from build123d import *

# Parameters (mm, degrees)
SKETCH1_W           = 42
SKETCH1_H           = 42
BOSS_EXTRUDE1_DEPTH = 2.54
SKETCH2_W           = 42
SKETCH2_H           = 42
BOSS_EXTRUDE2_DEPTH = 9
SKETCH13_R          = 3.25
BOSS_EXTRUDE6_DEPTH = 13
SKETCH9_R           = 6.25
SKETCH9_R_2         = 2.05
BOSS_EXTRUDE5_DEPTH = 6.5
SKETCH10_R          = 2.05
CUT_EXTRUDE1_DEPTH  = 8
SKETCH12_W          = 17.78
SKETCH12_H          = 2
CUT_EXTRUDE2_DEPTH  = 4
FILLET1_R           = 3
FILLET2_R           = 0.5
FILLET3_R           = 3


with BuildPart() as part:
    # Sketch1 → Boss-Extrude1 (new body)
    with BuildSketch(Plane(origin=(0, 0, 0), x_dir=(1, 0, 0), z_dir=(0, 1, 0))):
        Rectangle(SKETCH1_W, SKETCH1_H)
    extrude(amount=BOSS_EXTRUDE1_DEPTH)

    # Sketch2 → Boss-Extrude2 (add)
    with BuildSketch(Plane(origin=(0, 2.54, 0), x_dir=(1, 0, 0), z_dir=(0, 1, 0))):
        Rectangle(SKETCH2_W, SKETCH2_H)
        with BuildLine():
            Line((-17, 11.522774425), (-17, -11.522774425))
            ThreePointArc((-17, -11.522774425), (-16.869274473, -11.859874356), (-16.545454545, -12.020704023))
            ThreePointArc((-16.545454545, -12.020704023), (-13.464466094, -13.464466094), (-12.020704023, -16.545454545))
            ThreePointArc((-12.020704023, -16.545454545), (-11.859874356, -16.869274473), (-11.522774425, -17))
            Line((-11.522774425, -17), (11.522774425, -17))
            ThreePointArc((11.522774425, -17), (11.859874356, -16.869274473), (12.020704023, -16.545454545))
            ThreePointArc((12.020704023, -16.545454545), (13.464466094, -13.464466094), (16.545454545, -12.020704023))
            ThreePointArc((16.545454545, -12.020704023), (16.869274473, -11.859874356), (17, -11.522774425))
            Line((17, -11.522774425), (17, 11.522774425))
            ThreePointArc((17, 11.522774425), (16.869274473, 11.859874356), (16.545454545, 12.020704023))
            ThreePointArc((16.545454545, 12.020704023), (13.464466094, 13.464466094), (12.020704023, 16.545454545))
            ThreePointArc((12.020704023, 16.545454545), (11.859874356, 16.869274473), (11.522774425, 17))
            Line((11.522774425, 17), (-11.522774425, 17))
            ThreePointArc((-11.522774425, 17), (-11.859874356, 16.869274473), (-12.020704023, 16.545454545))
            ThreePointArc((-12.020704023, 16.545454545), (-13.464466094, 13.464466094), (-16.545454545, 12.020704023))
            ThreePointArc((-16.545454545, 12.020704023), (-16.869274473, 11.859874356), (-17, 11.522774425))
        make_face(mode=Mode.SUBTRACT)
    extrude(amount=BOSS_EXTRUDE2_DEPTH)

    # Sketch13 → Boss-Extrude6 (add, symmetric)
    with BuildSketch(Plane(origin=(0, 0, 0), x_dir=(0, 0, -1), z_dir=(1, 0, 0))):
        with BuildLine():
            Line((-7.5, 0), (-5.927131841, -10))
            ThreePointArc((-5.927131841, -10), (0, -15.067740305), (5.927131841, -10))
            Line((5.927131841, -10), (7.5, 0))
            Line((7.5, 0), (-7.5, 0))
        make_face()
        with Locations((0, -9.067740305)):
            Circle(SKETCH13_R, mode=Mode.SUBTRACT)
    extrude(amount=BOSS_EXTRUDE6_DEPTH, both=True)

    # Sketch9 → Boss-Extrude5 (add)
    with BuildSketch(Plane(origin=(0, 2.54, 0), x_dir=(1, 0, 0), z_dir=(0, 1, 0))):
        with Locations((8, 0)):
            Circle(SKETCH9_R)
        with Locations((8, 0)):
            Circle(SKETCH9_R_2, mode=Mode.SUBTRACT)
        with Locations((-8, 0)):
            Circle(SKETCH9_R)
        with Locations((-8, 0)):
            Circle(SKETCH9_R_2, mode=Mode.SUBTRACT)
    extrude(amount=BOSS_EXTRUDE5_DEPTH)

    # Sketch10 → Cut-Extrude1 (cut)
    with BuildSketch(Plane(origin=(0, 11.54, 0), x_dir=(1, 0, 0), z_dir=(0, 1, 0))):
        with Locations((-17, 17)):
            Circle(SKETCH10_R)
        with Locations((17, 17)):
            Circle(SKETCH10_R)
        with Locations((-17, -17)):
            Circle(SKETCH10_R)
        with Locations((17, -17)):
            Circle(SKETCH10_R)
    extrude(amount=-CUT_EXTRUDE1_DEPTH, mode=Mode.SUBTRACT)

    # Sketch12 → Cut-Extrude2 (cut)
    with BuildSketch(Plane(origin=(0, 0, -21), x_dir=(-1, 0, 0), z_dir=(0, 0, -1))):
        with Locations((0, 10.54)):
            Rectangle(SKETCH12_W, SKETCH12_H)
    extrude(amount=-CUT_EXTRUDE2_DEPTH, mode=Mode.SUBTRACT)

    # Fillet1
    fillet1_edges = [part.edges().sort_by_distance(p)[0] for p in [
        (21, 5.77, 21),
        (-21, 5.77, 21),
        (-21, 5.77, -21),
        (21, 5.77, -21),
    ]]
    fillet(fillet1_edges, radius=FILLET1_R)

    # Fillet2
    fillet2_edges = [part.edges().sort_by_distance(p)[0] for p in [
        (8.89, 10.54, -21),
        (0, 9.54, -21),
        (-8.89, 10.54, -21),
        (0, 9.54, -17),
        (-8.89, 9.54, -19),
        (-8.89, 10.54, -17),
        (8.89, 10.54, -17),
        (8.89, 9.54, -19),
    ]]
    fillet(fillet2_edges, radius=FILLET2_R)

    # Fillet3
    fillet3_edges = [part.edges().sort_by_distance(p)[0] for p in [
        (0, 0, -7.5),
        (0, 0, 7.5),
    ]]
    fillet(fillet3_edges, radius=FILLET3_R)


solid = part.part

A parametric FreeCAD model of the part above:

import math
import FreeCAD as App
import Part
import Sketcher

V = App.Vector


def edges_at(feature, points):
    """Names of the edges that pass closest to the given points."""
    edges = feature.Shape.Edges
    near = lambda p: min(range(len(edges)), key=lambda i: edges[i].distToShape(Part.Vertex(*p))[0])
    return sorted({f"Edge{near(p) + 1}" for p in points})


def add_polygon(sketch, points):
    """Adds a closed chain of lines whose ends are joined by coincident constraints."""
    first, n = sketch.GeometryCount, len(points)
    for a, b in zip(points, points[1:] + points[:1]):
        sketch.addGeometry(Part.LineSegment(App.Vector(*a, 0), App.Vector(*b, 0)), False)
    for i in range(n):
        sketch.addConstraint(Sketcher.Constraint("Coincident", first + i, 2, first + (i + 1) % n, 1))

doc = App.newDocument("Part")
body = doc.addObject("PartDesign::Body", "Body")

sketch1 = doc.addObject("Sketcher::SketchObject", "Sketch")
body.addObject(sketch1)
sketch1.AttachmentSupport = (doc.XZ_Plane, [""])
sketch1.MapMode = "FlatFace"
add_polygon(sketch1, [(-21, -21), (-21, 21), (21, 21), (21, -21)])
sketch1.addConstraint(Sketcher.Constraint("Vertical", 0))
sketch1.addConstraint(Sketcher.Constraint("Horizontal", 1))
sketch1.addConstraint(Sketcher.Constraint("Vertical", 2))
sketch1.addConstraint(Sketcher.Constraint("Horizontal", 3))
sketch1.addConstraint(Sketcher.Constraint("Symmetric", 0, 2, 2, 2, -1, 1))
sketch1.addConstraint(Sketcher.Constraint("Equal", 3, 0))
sketch1.addConstraint(Sketcher.Constraint("DistanceX", 1, 1, 1, 2, 42.0))
pad1 = doc.addObject("PartDesign::Pad", "Pad")
body.addObject(pad1)
pad1.Profile = sketch1
pad1.Length = 2.54
pad1.Reversed = True

sketch2 = doc.addObject("Sketcher::SketchObject", "Sketch001")
body.addObject(sketch2)
sketch2.AttachmentSupport = (doc.XZ_Plane, [""])
sketch2.MapMode = "FlatFace"
sketch2.AttachmentOffset = App.Placement(V(0, 0, -2.54), App.Rotation())
add_polygon(sketch2, [(-21, -21), (-21, 21), (21, 21), (21, -21)])
sketch2.addGeometry(Part.LineSegment(V(-17, 11.5, 0), V(-17, -11.5, 0)), False)
sketch2.addGeometry(Part.ArcOfCircle(Part.Circle(V(-16.5, -11.5, 0), V(0, 0, 1), 0.5), math.radians(180), math.radians(265)), False)
sketch2.addGeometry(Part.ArcOfCircle(Part.Circle(V(-17, -17, 0), V(0, 0, 1), 5), math.radians(5), math.radians(85)), False)
sketch2.addGeometry(Part.ArcOfCircle(Part.Circle(V(-11.5, -16.5, 0), V(0, 0, 1), 0.5), math.radians(-175), math.radians(-90)), False)
sketch2.addGeometry(Part.LineSegment(V(-11.5, -17, 0), V(11.5, -17, 0)), False)
sketch2.addGeometry(Part.ArcOfCircle(Part.Circle(V(11.5, -16.5, 0), V(0, 0, 1), 0.5), math.radians(-90), math.radians(-5)), False)
sketch2.addGeometry(Part.ArcOfCircle(Part.Circle(V(17, -17, 0), V(0, 0, 1), 5), math.radians(95), math.radians(175)), False)
sketch2.addGeometry(Part.ArcOfCircle(Part.Circle(V(16.5, -11.5, 0), V(0, 0, 1), 0.5), math.radians(-85), math.radians(0)), False)
sketch2.addGeometry(Part.LineSegment(V(17, -11.5, 0), V(17, 11.5, 0)), False)
sketch2.addGeometry(Part.ArcOfCircle(Part.Circle(V(16.5, 11.5, 0), V(0, 0, 1), 0.5), math.radians(0), math.radians(85)), False)
sketch2.addGeometry(Part.ArcOfCircle(Part.Circle(V(17, 17, 0), V(0, 0, 1), 5), math.radians(-175), math.radians(-95)), False)
sketch2.addGeometry(Part.ArcOfCircle(Part.Circle(V(11.5, 16.5, 0), V(0, 0, 1), 0.5), math.radians(5), math.radians(90)), False)
sketch2.addGeometry(Part.LineSegment(V(11.5, 17, 0), V(-11.5, 17, 0)), False)
sketch2.addGeometry(Part.ArcOfCircle(Part.Circle(V(-11.5, 16.5, 0), V(0, 0, 1), 0.5), math.radians(90), math.radians(175)), False)
sketch2.addGeometry(Part.ArcOfCircle(Part.Circle(V(-17, 17, 0), V(0, 0, 1), 5), math.radians(-85), math.radians(-5)), False)
sketch2.addGeometry(Part.ArcOfCircle(Part.Circle(V(-16.5, 11.5, 0), V(0, 0, 1), 0.5), math.radians(95), math.radians(180)), False)
sketch2.addConstraint(Sketcher.Constraint("Tangent", 4, 2, 5, 1))
sketch2.addConstraint(Sketcher.Constraint("Tangent", 5, 2, 6, 2))
sketch2.addConstraint(Sketcher.Constraint("Tangent", 6, 1, 7, 1))
sketch2.addConstraint(Sketcher.Constraint("Tangent", 7, 2, 8, 1))
sketch2.addConstraint(Sketcher.Constraint("Tangent", 8, 2, 9, 1))
sketch2.addConstraint(Sketcher.Constraint("Tangent", 9, 2, 10, 2))
sketch2.addConstraint(Sketcher.Constraint("Tangent", 10, 1, 11, 1))
sketch2.addConstraint(Sketcher.Constraint("Tangent", 11, 2, 12, 1))
sketch2.addConstraint(Sketcher.Constraint("Tangent", 12, 2, 13, 1))
sketch2.addConstraint(Sketcher.Constraint("Tangent", 13, 2, 14, 2))
sketch2.addConstraint(Sketcher.Constraint("Tangent", 14, 1, 15, 1))
sketch2.addConstraint(Sketcher.Constraint("Tangent", 15, 2, 16, 1))
sketch2.addConstraint(Sketcher.Constraint("Tangent", 16, 2, 17, 1))
sketch2.addConstraint(Sketcher.Constraint("Tangent", 17, 2, 18, 2))
sketch2.addConstraint(Sketcher.Constraint("Tangent", 18, 1, 19, 1))
sketch2.addConstraint(Sketcher.Constraint("Tangent", 19, 2, 4, 1))
sketch2.addConstraint(Sketcher.Constraint("Vertical", 0))
sketch2.addConstraint(Sketcher.Constraint("Horizontal", 1))
sketch2.addConstraint(Sketcher.Constraint("Vertical", 2))
sketch2.addConstraint(Sketcher.Constraint("Horizontal", 3))
sketch2.addConstraint(Sketcher.Constraint("Vertical", 4))
sketch2.addConstraint(Sketcher.Constraint("Horizontal", 8))
sketch2.addConstraint(Sketcher.Constraint("Vertical", 12))
sketch2.addConstraint(Sketcher.Constraint("Horizontal", 16))
sketch2.addConstraint(Sketcher.Constraint("Equal", 5, 7))
sketch2.addConstraint(Sketcher.Constraint("Equal", 7, 9))
sketch2.addConstraint(Sketcher.Constraint("Equal", 6, 10))
sketch2.addConstraint(Sketcher.Constraint("Equal", 9, 11))
sketch2.addConstraint(Sketcher.Constraint("Equal", 11, 13))
sketch2.addConstraint(Sketcher.Constraint("Equal", 10, 14))
sketch2.addConstraint(Sketcher.Constraint("Equal", 13, 15))
sketch2.addConstraint(Sketcher.Constraint("Equal", 15, 17))
sketch2.addConstraint(Sketcher.Constraint("Equal", 14, 18))
sketch2.addConstraint(Sketcher.Constraint("Equal", 17, 19))
sketch2.addConstraint(Sketcher.Constraint("Symmetric", 5, 3, 13, 3, -1, 1))
sketch2.addConstraint(Sketcher.Constraint("Symmetric", 7, 3, 15, 3, -1, 1))
sketch2.addConstraint(Sketcher.Constraint("Symmetric", 10, 3, 18, 3, -1, 1))
sketch2.addConstraint(Sketcher.Constraint("Symmetric", 0, 2, 2, 2, -1, 1))
sketch2.addConstraint(Sketcher.Constraint("Symmetric", 6, 3, 10, 3, -2))
sketch2.addConstraint(Sketcher.Constraint("Horizontal", 10, 3, 7, 2))
sketch2.addConstraint(Sketcher.Constraint("Vertical", 18, 3, 4, 2))
sketch2.addConstraint(Sketcher.Constraint("Equal", 3, 0))
sketch2.addConstraint(Sketcher.Constraint("Equal", 16, 4))
sketch2.addConstraint(Sketcher.Constraint("Radius", 6, 5.0))
sketch2.addConstraint(Sketcher.Constraint("Radius", 5, 0.5))
sketch2.addConstraint(Sketcher.Constraint("DistanceX", 1, 1, 1, 2, 42.0))
sketch2.addConstraint(Sketcher.Constraint("DistanceX", 6, 3, -1, 1, 17.0))
pad2 = doc.addObject("PartDesign::Pad", "Pad001")
body.addObject(pad2)
pad2.Profile = sketch2
pad2.Length = 9
pad2.Reversed = True

sketch3 = doc.addObject("Sketcher::SketchObject", "Sketch002")
body.addObject(sketch3)
sketch3.AttachmentSupport = (doc.YZ_Plane, [""])
sketch3.MapMode = "FlatFace"
sketch3.addGeometry(Part.LineSegment(V(0, 7.5, 0), V(-10, 5.9, 0)), False)
sketch3.addGeometry(Part.ArcOfCircle(Part.Circle(V(-9.1, 0, 0), V(0, 0, 1), 6), math.radians(99), math.radians(261)), False)
sketch3.addGeometry(Part.LineSegment(V(-10, -5.9, 0), V(0, -7.5, 0)), False)
sketch3.addGeometry(Part.LineSegment(V(0, -7.5, 0), V(0, 7.5, 0)), False)
sketch3.addGeometry(Part.Circle(V(-9.1, 0, 0), V(0, 0, 1), 3.2), False)
sketch3.addConstraint(Sketcher.Constraint("Tangent", 0, 2, 1, 1))
sketch3.addConstraint(Sketcher.Constraint("Tangent", 1, 2, 2, 1))
sketch3.addConstraint(Sketcher.Constraint("Coincident", 2, 2, 3, 1))
sketch3.addConstraint(Sketcher.Constraint("Coincident", 3, 2, 0, 1))
sketch3.addConstraint(Sketcher.Constraint("Vertical", 3))
sketch3.addConstraint(Sketcher.Constraint("Coincident", 4, 3, 1, 3))
sketch3.addConstraint(Sketcher.Constraint("Symmetric", 2, 2, 3, 2, -1, 1))
sketch3.addConstraint(Sketcher.Constraint("PointOnObject", 1, 3, -1))
sketch3.addConstraint(Sketcher.Constraint("Radius", 1, 6.0))
sketch3.addConstraint(Sketcher.Constraint("Diameter", 4, 6.5))
sketch3.addConstraint(Sketcher.Constraint("DistanceY", 3, 1, 3, 2, 15.0))
sketch3.addConstraint(Sketcher.Constraint("DistanceX", 0, 2, -1, 1, 10.0))
pad3 = doc.addObject("PartDesign::Pad", "Pad002")
body.addObject(pad3)
pad3.Profile = sketch3
pad3.Length = 26
pad3.Midplane = True

sketch4 = doc.addObject("Sketcher::SketchObject", "Sketch003")
body.addObject(sketch4)
sketch4.AttachmentSupport = (doc.XZ_Plane, [""])
sketch4.MapMode = "FlatFace"
sketch4.AttachmentOffset = App.Placement(V(0, 0, -2.54), App.Rotation())
sketch4.addGeometry(Part.Circle(V(8, 0, 0), V(0, 0, 1), 6.2), False)
sketch4.addGeometry(Part.Circle(V(8, 0, 0), V(0, 0, 1), 2), False)
sketch4.addGeometry(Part.Circle(V(-8, 0, 0), V(0, 0, 1), 6.2), False)
sketch4.addGeometry(Part.Circle(V(-8, 0, 0), V(0, 0, 1), 2), False)
sketch4.addConstraint(Sketcher.Constraint("Coincident", 1, 3, 0, 3))
sketch4.addConstraint(Sketcher.Constraint("Coincident", 3, 3, 2, 3))
sketch4.addConstraint(Sketcher.Constraint("Equal", 0, 2))
sketch4.addConstraint(Sketcher.Constraint("Equal", 1, 3))
sketch4.addConstraint(Sketcher.Constraint("Symmetric", 0, 3, 2, 3, -1, 1))
sketch4.addConstraint(Sketcher.Constraint("PointOnObject", 0, 3, -1))
sketch4.addConstraint(Sketcher.Constraint("Diameter", 0, 12.5))
sketch4.addConstraint(Sketcher.Constraint("Diameter", 1, 4.1))
sketch4.addConstraint(Sketcher.Constraint("DistanceX", -1, 1, 0, 3, 8.0))
pad4 = doc.addObject("PartDesign::Pad", "Pad003")
body.addObject(pad4)
pad4.Profile = sketch4
pad4.Length = 6.5
pad4.Reversed = True

sketch5 = doc.addObject("Sketcher::SketchObject", "Sketch004")
body.addObject(sketch5)
sketch5.AttachmentSupport = (doc.XZ_Plane, [""])
sketch5.MapMode = "FlatFace"
sketch5.AttachmentOffset = App.Placement(V(0, 0, -11.54), App.Rotation())
sketch5.addGeometry(Part.Circle(V(-17, -17, 0), V(0, 0, 1), 2), False)
sketch5.addGeometry(Part.Circle(V(17, -17, 0), V(0, 0, 1), 2), False)
sketch5.addGeometry(Part.Circle(V(-17, 17, 0), V(0, 0, 1), 2), False)
sketch5.addGeometry(Part.Circle(V(17, 17, 0), V(0, 0, 1), 2), False)
sketch5.addConstraint(Sketcher.Constraint("Equal", 0, 1))
sketch5.addConstraint(Sketcher.Constraint("Equal", 1, 2))
sketch5.addConstraint(Sketcher.Constraint("Equal", 2, 3))
sketch5.addConstraint(Sketcher.Constraint("Symmetric", 1, 3, 2, 3, -1, 1))
sketch5.addConstraint(Sketcher.Constraint("Symmetric", 0, 3, 3, 3, -1, 1))
sketch5.addConstraint(Sketcher.Constraint("Symmetric", 0, 3, 1, 3, -2))
sketch5.addConstraint(Sketcher.Constraint("Diameter", 0, 4.1))
sketch5.addConstraint(Sketcher.Constraint("DistanceX", 0, 3, -1, 1, 17.0))
sketch5.addConstraint(Sketcher.Constraint("DistanceY", 0, 3, -1, 1, 17.0))
pocket1 = doc.addObject("PartDesign::Pocket", "Pocket")
body.addObject(pocket1)
pocket1.Profile = sketch5
pocket1.Length = 8
pocket1.Reversed = True

sketch6 = doc.addObject("Sketcher::SketchObject", "Sketch005")
body.addObject(sketch6)
sketch6.AttachmentSupport = (doc.XY_Plane, [""])
sketch6.MapMode = "FlatFace"
sketch6.AttachmentOffset = App.Placement(V(0, 0, -21), App.Rotation())
add_polygon(sketch6, [(8.9, 11.5), (8.9, 9.5), (-8.9, 9.5), (-8.9, 11.5)])
sketch6.addConstraint(Sketcher.Constraint("Vertical", 0))
sketch6.addConstraint(Sketcher.Constraint("Horizontal", 1))
sketch6.addConstraint(Sketcher.Constraint("Vertical", 2))
sketch6.addConstraint(Sketcher.Constraint("Horizontal", 3))
sketch6.addConstraint(Sketcher.Constraint("DistanceY", 0, 2, 0, 1, 2.0))
sketch6.addConstraint(Sketcher.Constraint("DistanceX", 1, 2, 1, 1, 17.78))
sketch6.addConstraint(Sketcher.Constraint("DistanceX", -1, 1, 0, 2, 8.89))
sketch6.addConstraint(Sketcher.Constraint("DistanceY", -1, 1, 0, 2, 9.54))
pocket2 = doc.addObject("PartDesign::Pocket", "Pocket001")
body.addObject(pocket2)
pocket2.Profile = sketch6
pocket2.Length = 4
pocket2.Reversed = True
doc.recompute()

fillet = doc.addObject("PartDesign::Fillet", "Fillet")
body.addObject(fillet)
fillet.Base = (pocket2, edges_at(pocket2, [
    (21, 5.77, 21),
    (-21, 5.77, 21),
    (-21, 5.77, -21),
    (21, 5.77, -21),
]))
fillet.Radius = 3
doc.recompute()

fillet2 = doc.addObject("PartDesign::Fillet", "Fillet001")
body.addObject(fillet2)
fillet2.Base = (fillet, edges_at(fillet, [
    (8.89, 10.54, -21),
    (0, 9.54, -21),
    (-8.89, 10.54, -21),
    (0, 9.54, -17),
    (-8.89, 9.54, -19),
    (-8.89, 10.54, -17),
    (8.89, 10.54, -17),
    (8.89, 9.54, -19),
]))
fillet2.Radius = 0.5
doc.recompute()

fillet3 = doc.addObject("PartDesign::Fillet", "Fillet002")
body.addObject(fillet3)
fillet3.Base = (fillet2, edges_at(fillet2, [(0, 0, -7.5), (0, 0, 7.5)]))
fillet3.Radius = 3

doc.recompute()
